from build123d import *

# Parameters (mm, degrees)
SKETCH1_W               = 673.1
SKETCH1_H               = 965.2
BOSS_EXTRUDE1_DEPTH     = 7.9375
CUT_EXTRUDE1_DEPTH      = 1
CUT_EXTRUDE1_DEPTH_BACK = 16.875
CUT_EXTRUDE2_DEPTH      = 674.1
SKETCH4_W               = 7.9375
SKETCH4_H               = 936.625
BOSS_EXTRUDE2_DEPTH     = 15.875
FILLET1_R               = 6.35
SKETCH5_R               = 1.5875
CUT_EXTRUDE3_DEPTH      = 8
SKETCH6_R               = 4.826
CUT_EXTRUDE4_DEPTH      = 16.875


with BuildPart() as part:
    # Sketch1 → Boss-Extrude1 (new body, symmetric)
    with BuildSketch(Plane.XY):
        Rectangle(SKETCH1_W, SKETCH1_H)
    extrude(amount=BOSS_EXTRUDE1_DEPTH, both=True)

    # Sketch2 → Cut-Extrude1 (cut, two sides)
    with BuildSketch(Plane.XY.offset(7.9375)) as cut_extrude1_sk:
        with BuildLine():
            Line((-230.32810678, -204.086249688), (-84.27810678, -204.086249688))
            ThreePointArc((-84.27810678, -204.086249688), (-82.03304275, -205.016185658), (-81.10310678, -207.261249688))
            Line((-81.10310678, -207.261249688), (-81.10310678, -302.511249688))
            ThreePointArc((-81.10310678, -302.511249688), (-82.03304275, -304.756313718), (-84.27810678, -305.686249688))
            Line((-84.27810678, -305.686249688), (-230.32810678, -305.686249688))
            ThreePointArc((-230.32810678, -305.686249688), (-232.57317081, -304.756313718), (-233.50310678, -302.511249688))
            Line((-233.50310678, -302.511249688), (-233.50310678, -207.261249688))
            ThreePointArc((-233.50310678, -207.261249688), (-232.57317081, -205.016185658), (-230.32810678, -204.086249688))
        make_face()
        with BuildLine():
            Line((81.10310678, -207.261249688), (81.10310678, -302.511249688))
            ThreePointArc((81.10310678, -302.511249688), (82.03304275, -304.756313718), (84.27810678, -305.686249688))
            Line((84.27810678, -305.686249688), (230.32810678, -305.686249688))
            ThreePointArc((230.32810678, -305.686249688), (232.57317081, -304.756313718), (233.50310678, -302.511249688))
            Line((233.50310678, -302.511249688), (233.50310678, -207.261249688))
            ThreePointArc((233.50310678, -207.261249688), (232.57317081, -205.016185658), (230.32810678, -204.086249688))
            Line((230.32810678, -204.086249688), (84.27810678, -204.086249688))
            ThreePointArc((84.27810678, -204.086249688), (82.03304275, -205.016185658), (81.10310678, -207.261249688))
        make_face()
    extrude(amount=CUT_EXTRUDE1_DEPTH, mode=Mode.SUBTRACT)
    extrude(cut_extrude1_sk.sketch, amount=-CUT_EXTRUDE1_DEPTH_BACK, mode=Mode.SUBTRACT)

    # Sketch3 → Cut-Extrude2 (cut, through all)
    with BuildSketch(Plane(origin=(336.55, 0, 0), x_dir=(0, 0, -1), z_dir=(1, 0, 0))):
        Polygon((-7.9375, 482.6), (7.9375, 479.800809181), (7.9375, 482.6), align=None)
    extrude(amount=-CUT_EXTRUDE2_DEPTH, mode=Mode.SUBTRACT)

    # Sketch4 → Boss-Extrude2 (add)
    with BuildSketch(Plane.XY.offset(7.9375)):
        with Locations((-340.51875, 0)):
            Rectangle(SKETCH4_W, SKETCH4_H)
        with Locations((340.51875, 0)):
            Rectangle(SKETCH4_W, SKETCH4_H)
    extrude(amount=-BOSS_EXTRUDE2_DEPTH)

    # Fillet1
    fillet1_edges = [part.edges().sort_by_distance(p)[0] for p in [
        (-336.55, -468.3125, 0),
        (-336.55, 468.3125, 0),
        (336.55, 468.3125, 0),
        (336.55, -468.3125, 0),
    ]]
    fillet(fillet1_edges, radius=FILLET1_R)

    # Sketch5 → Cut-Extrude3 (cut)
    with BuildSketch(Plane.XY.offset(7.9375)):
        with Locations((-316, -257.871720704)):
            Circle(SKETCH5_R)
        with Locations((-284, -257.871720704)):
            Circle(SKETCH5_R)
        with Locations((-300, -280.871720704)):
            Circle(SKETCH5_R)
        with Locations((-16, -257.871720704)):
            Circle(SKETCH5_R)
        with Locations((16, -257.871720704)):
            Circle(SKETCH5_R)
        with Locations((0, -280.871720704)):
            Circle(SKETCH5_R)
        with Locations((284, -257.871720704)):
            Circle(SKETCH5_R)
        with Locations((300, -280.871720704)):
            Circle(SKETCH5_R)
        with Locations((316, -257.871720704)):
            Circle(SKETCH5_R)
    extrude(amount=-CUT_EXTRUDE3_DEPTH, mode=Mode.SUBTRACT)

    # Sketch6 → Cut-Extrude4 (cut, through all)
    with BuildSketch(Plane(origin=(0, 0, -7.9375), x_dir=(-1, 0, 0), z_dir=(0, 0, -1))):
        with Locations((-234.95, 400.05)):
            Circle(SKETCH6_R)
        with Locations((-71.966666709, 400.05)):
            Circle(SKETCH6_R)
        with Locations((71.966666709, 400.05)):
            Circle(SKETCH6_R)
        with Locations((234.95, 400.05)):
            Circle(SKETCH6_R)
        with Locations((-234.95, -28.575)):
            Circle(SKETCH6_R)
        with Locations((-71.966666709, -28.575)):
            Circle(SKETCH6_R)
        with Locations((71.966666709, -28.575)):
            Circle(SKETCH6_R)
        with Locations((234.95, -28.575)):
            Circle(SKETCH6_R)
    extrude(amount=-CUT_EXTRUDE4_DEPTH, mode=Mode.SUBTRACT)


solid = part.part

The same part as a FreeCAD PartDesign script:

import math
import FreeCAD as App
import Part
import Sketcher
from FreeCAD import Vector
Q = App.Units.Quantity


def edges_at(feature, points):
    """Names of the edges that pass closest to the given points."""
    edges = feature.Shape.Edges
    near = lambda p: min(range(len(edges)), key=lambda i: edges[i].distToShape(Part.Vertex(*p))[0])
    return sorted({f"Edge{near(p) + 1}" for p in points})


def add_polygon(sketch, points):
    """Adds a closed chain of lines whose ends are joined by coincident constraints."""
    first, n = sketch.GeometryCount, len(points)
    for a, b in zip(points, points[1:] + points[:1]):
        sketch.addGeometry(Part.LineSegment(App.Vector(*a, 0), App.Vector(*b, 0)), False)
    for i in range(n):
        sketch.addConstraint(Sketcher.Constraint("Coincident", first + i, 2, first + (i + 1) % n, 1))

doc = App.newDocument("Part")
body = doc.addObject("PartDesign::Body", "Body")

sketch1 = body.newObject("Sketcher::SketchObject", "Sketch")
sketch1.AttachmentSupport = (doc.getObject("XY_Plane"), [""])
sketch1.MapMode = "FlatFace"
add_polygon(sketch1, [(-337, 483), (-337, -483), (337, -483), (337, 483)])
sketch1.addConstraint(Sketcher.Constraint("Vertical", 0))
sketch1.addConstraint(Sketcher.Constraint("Horizontal", 1))
sketch1.addConstraint(Sketcher.Constraint("Vertical", 2))
sketch1.addConstraint(Sketcher.Constraint("Horizontal", 3))
sketch1.addConstraint(Sketcher.Constraint("Symmetric", 0, 2, 2, 2, -1, 1))
sketch1.addConstraint(Sketcher.Constraint("DistanceY", 0, 2, 0, 1, Q("38 in")))
sketch1.addConstraint(Sketcher.Constraint("DistanceX", 1, 1, 1, 2, Q("26.5 in")))
pad1 = body.newObject("PartDesign::Pad", "Pad")
pad1.Profile = sketch1
pad1.Length = Q("0.625 in")
pad1.Midplane = True

sketch2 = body.newObject("Sketcher::SketchObject", "Sketch001")
sketch2.AttachmentSupport = (doc.getObject("XY_Plane"), [""])
sketch2.MapMode = "FlatFace"
sketch2.AttachmentOffset = App.Placement(Vector(0, 0, 0.3125 * 25.4), App.Rotation())
sketch2.addGeometry(Part.LineSegment(Vector(-84.3, -204.1, 0), Vector(-230.3, -204.1, 0)), False)
sketch2.addGeometry(Part.ArcOfCircle(Part.Circle(Vector(-230.3, -207.3, 0), Vector(0, 0, 1), 3.2), math.radians(90), math.radians(180)), False)
sketch2.addGeometry(Part.LineSegment(Vector(-233.5, -207.3, 0), Vector(-233.5, -302.5, 0)), False)
sketch2.addGeometry(Part.ArcOfCircle(Part.Circle(Vector(-230.3, -302.5, 0), Vector(0, 0, 1), 3.2), math.radians(-180), math.radians(-90)), False)
sketch2.addGeometry(Part.LineSegment(Vector(-230.3, -305.7, 0), Vector(-84.3, -305.7, 0)), False)
sketch2.addGeometry(Part.ArcOfCircle(Part.Circle(Vector(-84.3, -302.5, 0), Vector(0, 0, 1), 3.2), math.radians(-90), math.radians(0)), False)
sketch2.addGeometry(Part.LineSegment(Vector(-81.1, -302.5, 0), Vector(-81.1, -207.3, 0)), False)
sketch2.addGeometry(Part.ArcOfCircle(Part.Circle(Vector(-84.3, -207.3, 0), Vector(0, 0, 1), 3.2), math.radians(0), math.radians(90)), False)
sketch2.addGeometry(Part.LineSegment(Vector(81.1, -207.3, 0), Vector(81.1, -302.5, 0)), False)
sketch2.addGeometry(Part.ArcOfCircle(Part.Circle(Vector(84.3, -302.5, 0), Vector(0, 0, 1), 3.2), math.radians(-180), math.radians(-90)), False)
sketch2.addGeometry(Part.LineSegment(Vector(84.3, -305.7, 0), Vector(230.3, -305.7, 0)), False)
sketch2.addGeometry(Part.ArcOfCircle(Part.Circle(Vector(230.3, -302.5, 0), Vector(0, 0, 1), 3.2), math.radians(-90), math.radians(0)), False)
sketch2.addGeometry(Part.LineSegment(Vector(233.5, -302.5, 0), Vector(233.5, -207.3, 0)), False)
sketch2.addGeometry(Part.ArcOfCircle(Part.Circle(Vector(230.3, -207.3, 0), Vector(0, 0, 1), 3.2), math.radians(0), math.radians(90)), False)
sketch2.addGeometry(Part.LineSegment(Vector(230.3, -204.1, 0), Vector(84.3, -204.1, 0)), False)
sketch2.addGeometry(Part.ArcOfCircle(Part.Circle(Vector(84.3, -207.3, 0), Vector(0, 0, 1), 3.2), math.radians(90), math.radians(180)), False)
sketch2.addConstraint(Sketcher.Constraint("Tangent", 0, 2, 1, 1))
sketch2.addConstraint(Sketcher.Constraint("Tangent", 1, 2, 2, 1))
sketch2.addConstraint(Sketcher.Constraint("Tangent", 2, 2, 3, 1))
sketch2.addConstraint(Sketcher.Constraint("Tangent", 3, 2, 4, 1))
sketch2.addConstraint(Sketcher.Constraint("Tangent", 4, 2, 5, 1))
sketch2.addConstraint(Sketcher.Constraint("Tangent", 5, 2, 6, 1))
sketch2.addConstraint(Sketcher.Constraint("Tangent", 6, 2, 7, 1))
sketch2.addConstraint(Sketcher.Constraint("Tangent", 7, 2, 0, 1))
sketch2.addConstraint(Sketcher.Constraint("Tangent", 8, 2, 9, 1))
sketch2.addConstraint(Sketcher.Constraint("Tangent", 9, 2, 10, 1))
sketch2.addConstraint(Sketcher.Constraint("Tangent", 10, 2, 11, 1))
sketch2.addConstraint(Sketcher.Constraint("Tangent", 11, 2, 12, 1))
sketch2.addConstraint(Sketcher.Constraint("Tangent", 12, 2, 13, 1))
sketch2.addConstraint(Sketcher.Constraint("Tangent", 13, 2, 14, 1))
sketch2.addConstraint(Sketcher.Constraint("Tangent", 14, 2, 15, 1))
sketch2.addConstraint(Sketcher.Constraint("Tangent", 15, 2, 8, 1))
sketch2.addConstraint(Sketcher.Constraint("Horizontal", 0))
sketch2.addConstraint(Sketcher.Constraint("Vertical", 2))
sketch2.addConstraint(Sketcher.Constraint("Horizontal", 4))
sketch2.addConstraint(Sketcher.Constraint("Vertical", 6))
sketch2.addConstraint(Sketcher.Constraint("Vertical", 8))
sketch2.addConstraint(Sketcher.Constraint("Horizontal", 10))
sketch2.addConstraint(Sketcher.Constraint("Vertical", 12))
sketch2.addConstraint(Sketcher.Constraint("Horizontal", 14))
sketch2.addConstraint(Sketcher.Constraint("Equal", 1, 3))
sketch2.addConstraint(Sketcher.Constraint("Equal", 3, 5))
sketch2.addConstraint(Sketcher.Constraint("Equal", 5, 7))
sketch2.addConstraint(Sketcher.Constraint("Equal", 7, 9))
sketch2.addConstraint(Sketcher.Constraint("Equal", 9, 11))
sketch2.addConstraint(Sketcher.Constraint("Equal", 11, 13))
sketch2.addConstraint(Sketcher.Constraint("Equal", 13, 15))
sketch2.addConstraint(Sketcher.Constraint("Symmetric", 5, 3, 9, 3, -2))
sketch2.addConstraint(Sketcher.Constraint("Symmetric", 1, 3, 13, 3, -2))
sketch2.addConstraint(Sketcher.Constraint("Radius", 1, Q("0.125 in")))
sketch2.addConstraint(Sketcher.Constraint("DistanceY", 3, 2, 0, 2, Q("4 in")))
sketch2.addConstraint(Sketcher.Constraint("DistanceX", 0, 2, 0, 1, Q("5.75 in")))
sketch2.addConstraint(Sketcher.Constraint("DistanceY", 1, 3, -1, 1, Q("207.26125 mm")))
sketch2.addConstraint(Sketcher.Constraint("DistanceX", 1, 3, -1, 1, Q("230.328107 mm")))
pocket1 = body.newObject("PartDesign::Pocket", "Pocket")
pocket1.Profile = sketch2
pocket1.Type = "ThroughAll"
pocket1.Midplane = True

sketch3 = body.newObject("Sketcher::SketchObject", "Sketch002")
sketch3.AttachmentSupport = (doc.getObject("YZ_Plane"), [""])
sketch3.MapMode = "FlatFace"
sketch3.AttachmentOffset = App.Placement(Vector(0, 0, 13.25 * 25.4), App.Rotation())
add_polygon(sketch3, [(482.6, 7.9), (479.8, -7.9), (482.6, -7.9)])
sketch3.addConstraint(Sketcher.Constraint("Horizontal", 1))
sketch3.addConstraint(Sketcher.Constraint("Vertical", 2))
sketch3.addConstraint(Sketcher.Constraint("DistanceX", -1, 1, 1, 2, Q("19 in")))
sketch3.addConstraint(Sketcher.Constraint("Angle", 0, Q("-100 deg")))
sketch3.addConstraint(Sketcher.Constraint("DistanceY", 2, 1, 2, 2, Q("0.625 in")))
sketch3.addConstraint(Sketcher.Constraint("DistanceY", 0, 2, -1, 1, Q("0.3125 in")))
pocket2 = body.newObject("PartDesign::Pocket", "Pocket001")
pocket2.Profile = sketch3
pocket2.Type = "ThroughAll"

sketch4 = body.newObject("Sketcher::SketchObject", "Sketch003")
sketch4.AttachmentSupport = (doc.getObject("XY_Plane"), [""])
sketch4.MapMode = "FlatFace"
sketch4.AttachmentOffset = App.Placement(Vector(0, 0, 0.3125 * 25.4), App.Rotation())
add_polygon(sketch4, [(-344, 468), (-344, -468), (-337, -468), (-337, 468)])
add_polygon(sketch4, [(337, 468), (337, -468), (344, -468), (344, 468)])
sketch4.addConstraint(Sketcher.Constraint("Vertical", 0))
sketch4.addConstraint(Sketcher.Constraint("Horizontal", 1))
sketch4.addConstraint(Sketcher.Constraint("Vertical", 2))
sketch4.addConstraint(Sketcher.Constraint("Horizontal", 3))
sketch4.addConstraint(Sketcher.Constraint("Vertical", 4))
sketch4.addConstraint(Sketcher.Constraint("Horizontal", 5))
sketch4.addConstraint(Sketcher.Constraint("Vertical", 6))
sketch4.addConstraint(Sketcher.Constraint("Horizontal", 7))
sketch4.addConstraint(Sketcher.Constraint("Symmetric", 2, 2, 4, 2, -1, 1))
sketch4.addConstraint(Sketcher.Constraint("Symmetric", 0, 2, 6, 2, -1, 1))
sketch4.addConstraint(Sketcher.Constraint("Horizontal", 1, 2, 4, 2))
sketch4.addConstraint(Sketcher.Constraint("DistanceX", 1, 2, 4, 2, Q("26.5 in")))
sketch4.addConstraint(Sketcher.Constraint("DistanceX", 1, 1, 1, 2, Q("0.3125 in")))
sketch4.addConstraint(Sketcher.Constraint("DistanceY", 0, 2, 0, 1, Q("36.875 in")))
pad2 = body.newObject("PartDesign::Pad", "Pad001")
pad2.Profile = sketch4
pad2.Length = Q("0.625 in")
pad2.Reversed = True
doc.recompute()

fillet = body.newObject("PartDesign::Fillet", "Fillet")
fillet.Base = (pad2, edges_at(pad2, [
    (-336.55, -468.312, 0),
    (-336.55, 468.312, 0),
    (336.55, 468.312, 0),
    (336.55, -468.312, 0),
]))
fillet.Radius = Q("0.25 in")

sketch5 = body.newObject("Sketcher::SketchObject", "Sketch004")
sketch5.AttachmentSupport = (doc.getObject("XY_Plane"), [""])
sketch5.MapMode = "FlatFace"
sketch5.AttachmentOffset = App.Placement(Vector(0, 0, 0.3125 * 25.4), App.Rotation())
sketch5.addGeometry(Part.Circle(Vector(-316, -257.9, 0), Vector(0, 0, 1), 1.6), False)
sketch5.addGeometry(Part.Circle(Vector(-284, -257.9, 0), Vector(0, 0, 1), 1.6), False)
sketch5.addGeometry(Part.Circle(Vector(-300, -280.9, 0), Vector(0, 0, 1), 1.6), False)
sketch5.addGeometry(Part.Circle(Vector(-16, -257.9, 0), Vector(0, 0, 1), 1.6), False)
sketch5.addGeometry(Part.Circle(Vector(16, -257.9, 0), Vector(0, 0, 1), 1.6), False)
sketch5.addGeometry(Part.Circle(Vector(0, -280.9, 0), Vector(0, 0, 1), 1.6), False)
sketch5.addGeometry(Part.Circle(Vector(284, -257.9, 0), Vector(0, 0, 1), 1.6), False)
sketch5.addGeometry(Part.Circle(Vector(300, -280.9, 0), Vector(0, 0, 1), 1.6), False)
sketch5.addGeometry(Part.Circle(Vector(316, -257.9, 0), Vector(0, 0, 1), 1.6), False)
sketch5.addConstraint(Sketcher.Constraint("Equal", 0, 1))
sketch5.addConstraint(Sketcher.Constraint("Equal", 1, 2))
sketch5.addConstraint(Sketcher.Constraint("Equal", 2, 3))
sketch5.addConstraint(Sketcher.Constraint("Equal", 3, 4))
sketch5.addConstraint(Sketcher.Constraint("Equal", 4, 5))
sketch5.addConstraint(Sketcher.Constraint("Equal", 5, 6))
sketch5.addConstraint(Sketcher.Constraint("Equal", 6, 7))
sketch5.addConstraint(Sketcher.Constraint("Equal", 7, 8))
sketch5.addConstraint(Sketcher.Constraint("Symmetric", 3, 3, 4, 3, -2))
sketch5.addConstraint(Sketcher.Constraint("Symmetric", 1, 3, 6, 3, -2))
sketch5.addConstraint(Sketcher.Constraint("Symmetric", 2, 3, 7, 3, -2))
sketch5.addConstraint(Sketcher.Constraint("Symmetric", 0, 3, 8, 3, -2))
sketch5.addConstraint(Sketcher.Constraint("PointOnObject", 5, 3, -2))
sketch5.addConstraint(Sketcher.Constraint("Horizontal", 0, 3, 1, 3))
sketch5.addConstraint(Sketcher.Constraint("Horizontal", 1, 3, 3, 3))
sketch5.addConstraint(Sketcher.Constraint("Horizontal", 2, 3, 5, 3))
sketch5.addConstraint(Sketcher.Constraint("Diameter", 0, Q("0.125 in")))
sketch5.addConstraint(Sketcher.Constraint("DistanceX", 0, 3, -1, 1, Q("316 mm")))
sketch5.addConstraint(Sketcher.Constraint("DistanceX", 1, 3, -1, 1, Q("284 mm")))
sketch5.addConstraint(Sketcher.Constraint("DistanceX", 2, 3, -1, 1, Q("300 mm")))
sketch5.addConstraint(Sketcher.Constraint("DistanceX", 3, 3, -1, 1, Q("16 mm")))
sketch5.addConstraint(Sketcher.Constraint("DistanceY", 2, 3, 0, 3, Q("23 mm")))
sketch5.addConstraint(Sketcher.Constraint("DistanceY", 0, 3, -1, 1, Q("257.871721 mm")))
pocket3 = body.newObject("PartDesign::Pocket", "Pocket002")
pocket3.Profile = sketch5
pocket3.Length = 8

sketch6 = body.newObject("Sketcher::SketchObject", "Sketch005")
sketch6.AttachmentSupport = (doc.getObject("XY_Plane"), [""])
sketch6.MapMode = "FlatFace"
sketch6.AttachmentOffset = App.Placement(Vector(0, 0, -0.3125 * 25.4), App.Rotation())
sketch6.addGeometry(Part.Circle(Vector(234.9, 400.1, 0), Vector(0, 0, 1), 4.8), False)
sketch6.addGeometry(Part.Circle(Vector(72, 400.1, 0), Vector(0, 0, 1), 4.8), False)
sketch6.addGeometry(Part.Circle(Vector(-72, 400.1, 0), Vector(0, 0, 1), 4.8), False)
sketch6.addGeometry(Part.Circle(Vector(-234.9, 400.1, 0), Vector(0, 0, 1), 4.8), False)
sketch6.addGeometry(Part.Circle(Vector(234.9, -28.6, 0), Vector(0, 0, 1), 4.8), False)
sketch6.addGeometry(Part.Circle(Vector(72, -28.6, 0), Vector(0, 0, 1), 4.8), False)
sketch6.addGeometry(Part.Circle(Vector(-72, -28.6, 0), Vector(0, 0, 1), 4.8), False)
sketch6.addGeometry(Part.Circle(Vector(-234.9, -28.6, 0), Vector(0, 0, 1), 4.8), False)
sketch6.addConstraint(Sketcher.Constraint("Equal", 0, 1))
sketch6.addConstraint(Sketcher.Constraint("Equal", 1, 2))
sketch6.addConstraint(Sketcher.Constraint("Equal", 2, 3))
sketch6.addConstraint(Sketcher.Constraint("Equal", 3, 4))
sketch6.addConstraint(Sketcher.Constraint("Equal", 4, 5))
sketch6.addConstraint(Sketcher.Constraint("Equal", 5, 6))
sketch6.addConstraint(Sketcher.Constraint("Equal", 6, 7))
sketch6.addConstraint(Sketcher.Constraint("Symmetric", 1, 3, 2, 3, -2))
sketch6.addConstraint(Sketcher.Constraint("Symmetric", 0, 3, 3, 3, -2))
sketch6.addConstraint(Sketcher.Constraint("Symmetric", 5, 3, 6, 3, -2))
sketch6.addConstraint(Sketcher.Constraint("Symmetric", 4, 3, 7, 3, -2))
sketch6.addConstraint(Sketcher.Constraint("Horizontal", 0, 3, 1, 3))
sketch6.addConstraint(Sketcher.Constraint("Horizontal", 4, 3, 5, 3))
sketch6.addConstraint(Sketcher.Constraint("Vertical", 0, 3, 4, 3))
sketch6.addConstraint(Sketcher.Constraint("Vertical", 1, 3, 5, 3))
sketch6.addConstraint(Sketcher.Constraint("Diameter", 0, Q("0.38 in")))
sketch6.addConstraint(Sketcher.Constraint("DistanceX", 3, 3, 0, 3, Q("18.5 in")))
sketch6.addConstraint(Sketcher.Constraint("DistanceY", -1, 1, 0, 3, Q("15.75 in")))
sketch6.addConstraint(Sketcher.Constraint("DistanceY", 4, 3, -1, 1, Q("1.125 in")))
sketch6.addConstraint(Sketcher.Constraint("DistanceX", -1, 1, 1, 3, Q("71.966667 mm")))
pocket4 = body.newObject("PartDesign::Pocket", "Pocket003")
pocket4.Profile = sketch6
pocket4.Type = "ThroughAll"
pocket4.Reversed = True

doc.recompute()
